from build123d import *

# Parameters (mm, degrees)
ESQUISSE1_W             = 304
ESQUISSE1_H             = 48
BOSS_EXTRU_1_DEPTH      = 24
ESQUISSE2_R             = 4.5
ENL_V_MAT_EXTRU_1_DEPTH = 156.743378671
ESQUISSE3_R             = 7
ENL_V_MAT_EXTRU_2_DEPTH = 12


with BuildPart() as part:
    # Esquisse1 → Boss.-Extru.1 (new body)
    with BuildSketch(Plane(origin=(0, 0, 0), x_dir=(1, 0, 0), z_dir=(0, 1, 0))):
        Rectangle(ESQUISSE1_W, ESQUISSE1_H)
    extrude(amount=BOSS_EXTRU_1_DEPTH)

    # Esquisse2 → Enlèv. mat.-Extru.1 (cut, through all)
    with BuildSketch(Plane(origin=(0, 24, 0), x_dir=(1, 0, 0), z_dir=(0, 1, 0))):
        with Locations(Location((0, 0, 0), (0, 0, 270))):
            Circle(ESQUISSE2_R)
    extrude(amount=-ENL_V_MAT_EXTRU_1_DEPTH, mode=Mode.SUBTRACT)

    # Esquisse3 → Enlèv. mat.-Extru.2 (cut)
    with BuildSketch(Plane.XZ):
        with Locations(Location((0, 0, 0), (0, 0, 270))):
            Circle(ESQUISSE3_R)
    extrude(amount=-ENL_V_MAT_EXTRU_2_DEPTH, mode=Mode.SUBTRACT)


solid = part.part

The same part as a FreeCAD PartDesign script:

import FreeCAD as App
import Part
import Sketcher

V = App.Vector
Q = App.Units.Quantity


def add_polygon(sketch, points):
    """Adds a closed chain of lines whose ends are joined by coincident constraints."""
    first, n = sketch.GeometryCount, len(points)
    for a, b in zip(points, points[1:] + points[:1]):
        sketch.addGeometry(Part.LineSegment(App.Vector(*a, 0), App.Vector(*b, 0)), False)
    for i in range(n):
        sketch.addConstraint(Sketcher.Constraint("Coincident", first + i, 2, first + (i + 1) % n, 1))

doc = App.newDocument("Part")
body = doc.addObject("PartDesign::Body", "Body")

sketch1 = body.newObject("Sketcher::SketchObject", "Sketch")
sketch1.AttachmentSupport = (doc.getObject("XZ_Plane"), [""])
sketch1.MapMode = "FlatFace"
add_polygon(sketch1, [(-152, -24), (-152, 24), (152, 24), (152, -24)])
sketch1.addConstraint(Sketcher.Constraint("Vertical", 0))
sketch1.addConstraint(Sketcher.Constraint("Horizontal", 1))
sketch1.addConstraint(Sketcher.Constraint("Vertical", 2))
sketch1.addConstraint(Sketcher.Constraint("Horizontal", 3))
sketch1.addConstraint(Sketcher.Constraint("Symmetric", 0, 2, 2, 2, -1, 1))
sketch1.addConstraint(Sketcher.Constraint("DistanceX", 1, 1, 1, 2, Q("304 mm")))
sketch1.addConstraint(Sketcher.Constraint("DistanceY", 0, 1, 0, 2, Q("48 mm")))
pad1 = body.newObject("PartDesign::Pad", "Pad")
pad1.Profile = sketch1
pad1.Length = 24
pad1.Reversed = True

sketch2 = body.newObject("Sketcher::SketchObject", "Sketch001")
sketch2.AttachmentSupport = (doc.getObject("XZ_Plane"), [""])
sketch2.MapMode = "FlatFace"
sketch2.AttachmentOffset = App.Placement(V(0, 0, -24), App.Rotation())
sketch2.addGeometry(Part.Circle(V(0, 0, 0), V(0, 0, 1), 4.5), False)
sketch2.addConstraint(Sketcher.Constraint("Coincident", 0, 3, -1, 1))
sketch2.addConstraint(Sketcher.Constraint("Diameter", 0, Q("9 mm")))
pocket1 = body.newObject("PartDesign::Pocket", "Pocket")
pocket1.Profile = sketch2
pocket1.Type = "ThroughAll"
pocket1.Reversed = True

sketch3 = body.newObject("Sketcher::SketchObject", "Sketch002")
sketch3.AttachmentSupport = (doc.getObject("XZ_Plane"), [""])
sketch3.MapMode = "FlatFace"
sketch3.addGeometry(Part.Circle(V(0, 0, 0), V(0, 0, 1), 7), False)
sketch3.addConstraint(Sketcher.Constraint("Coincident", 0, 3, -1, 1))
sketch3.addConstraint(Sketcher.Constraint("Diameter", 0, Q("14 mm")))
pocket2 = body.newObject("PartDesign::Pocket", "Pocket001")
pocket2.Profile = sketch3
pocket2.Length = 12

doc.recompute()
